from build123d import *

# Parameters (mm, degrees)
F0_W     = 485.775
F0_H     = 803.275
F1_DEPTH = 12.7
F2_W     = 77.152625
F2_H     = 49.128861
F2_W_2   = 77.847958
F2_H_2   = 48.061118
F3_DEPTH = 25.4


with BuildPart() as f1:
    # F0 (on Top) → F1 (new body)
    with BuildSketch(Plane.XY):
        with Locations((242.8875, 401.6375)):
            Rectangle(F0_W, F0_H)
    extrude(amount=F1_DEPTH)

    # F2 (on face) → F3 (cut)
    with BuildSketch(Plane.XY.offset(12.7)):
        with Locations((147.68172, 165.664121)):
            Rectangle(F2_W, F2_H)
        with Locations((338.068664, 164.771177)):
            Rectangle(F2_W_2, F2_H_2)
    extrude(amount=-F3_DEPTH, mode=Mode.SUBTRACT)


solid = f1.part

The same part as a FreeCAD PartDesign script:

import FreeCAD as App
import Part
import Sketcher

V = App.Vector
Q = App.Units.Quantity


def add_polygon(sketch, points):
    """Adds a closed chain of lines whose ends are joined by coincident constraints."""
    first, n = sketch.GeometryCount, len(points)
    for a, b in zip(points, points[1:] + points[:1]):
        sketch.addGeometry(Part.LineSegment(App.Vector(*a, 0), App.Vector(*b, 0)), False)
    for i in range(n):
        sketch.addConstraint(Sketcher.Constraint("Coincident", first + i, 2, first + (i + 1) % n, 1))

doc = App.newDocument("Part")
params = doc.addObject("Spreadsheet::Sheet", "Params")
for row, (alias, value) in enumerate([
    ("sketch1_width", "19.125 in"),
    ("sketch1_height", "31.625 in"),
    ("pad1_length", "0.5 in"),
    ("pocket1_length", "1 in"),
], start=1):
    params.set(f"A{row}", alias)
    params.set(f"B{row}", "=" + value)
    params.setAlias(f"B{row}", alias)

body = doc.addObject("PartDesign::Body", "Body")

# Sketch on XY plane
sketch1 = body.newObject("Sketcher::SketchObject", "Sketch")
sketch1.AttachmentSupport = (doc.getObject("XY_Plane"), [""])
sketch1.MapMode = "FlatFace"
add_polygon(sketch1, [(0, 803.275), (0, 0), (485.775, 0), (485.775, 803.275)])  # lines 0-3
sketch1.addConstraint([
    Sketcher.Constraint("Vertical", 0),
    Sketcher.Constraint("Horizontal", 1),
    Sketcher.Constraint("Vertical", 2),
    Sketcher.Constraint("Horizontal", 3),
    Sketcher.Constraint("Coincident", 0, 2, -1, 1),
    Sketcher.Constraint("DistanceX", 1, 1, 1, 2, Q("19.125 in")),
    Sketcher.Constraint("DistanceY", 0, 2, 0, 1, Q("31.625 in")),
])
sketch1.setExpression("Constraints[9]", "Params.sketch1_width")
sketch1.setExpression("Constraints[10]", "Params.sketch1_height")
pad1 = body.newObject("PartDesign::Pad", "Pad")
pad1.Profile = sketch1
pad1.setExpression("Length", "Params.pad1_length")

# Sketch on XY plane
sketch2 = body.newObject("Sketcher::SketchObject", "Sketch001")
sketch2.AttachmentSupport = (doc.getObject("XY_Plane"), [""])
sketch2.MapMode = "FlatFace"
sketch2.AttachmentOffset = App.Placement(V(0, 0, 0.5 * 25.4), App.Rotation())
add_polygon(sketch2, [(109.105407, 190.228552), (109.105407, 141.099691), (186.258033, 141.099691), (186.258033, 190.228552)])  # lines 0-3
add_polygon(sketch2, [(299.144685, 188.801736), (299.144685, 140.740618), (376.992643, 140.740618), (376.992643, 188.801736)])  # lines 4-7
sketch2.addConstraint([
    Sketcher.Constraint("Vertical", 0),
    Sketcher.Constraint("Horizontal", 1),
    Sketcher.Constraint("Vertical", 2),
    Sketcher.Constraint("Horizontal", 3),
    Sketcher.Constraint("Vertical", 4),
    Sketcher.Constraint("Horizontal", 5),
    Sketcher.Constraint("Vertical", 6),
    Sketcher.Constraint("Horizontal", 7),
    Sketcher.Constraint("DistanceX", 5, 1, 5, 2, 77.847958),
    Sketcher.Constraint("DistanceY", 0, 2, 0, 1, 49.128861),
    Sketcher.Constraint("DistanceX", 1, 1, 1, 2, 77.152625),
    Sketcher.Constraint("DistanceY", 4, 2, 4, 1, 48.061118),
    Sketcher.Constraint("DistanceY", -1, 1, 0, 2, 141.099691),
    Sketcher.Constraint("DistanceY", -1, 1, 4, 2, 140.740618),
    Sketcher.Constraint("DistanceX", 1, 2, 5, 2, 190.73461),
    Sketcher.Constraint("DistanceX", -1, 1, 0, 2, 109.105407),
])
pocket1 = body.newObject("PartDesign::Pocket", "Pocket")
pocket1.Profile = sketch2
pocket1.setExpression("Length", "Params.pocket1_length")

doc.recompute()
